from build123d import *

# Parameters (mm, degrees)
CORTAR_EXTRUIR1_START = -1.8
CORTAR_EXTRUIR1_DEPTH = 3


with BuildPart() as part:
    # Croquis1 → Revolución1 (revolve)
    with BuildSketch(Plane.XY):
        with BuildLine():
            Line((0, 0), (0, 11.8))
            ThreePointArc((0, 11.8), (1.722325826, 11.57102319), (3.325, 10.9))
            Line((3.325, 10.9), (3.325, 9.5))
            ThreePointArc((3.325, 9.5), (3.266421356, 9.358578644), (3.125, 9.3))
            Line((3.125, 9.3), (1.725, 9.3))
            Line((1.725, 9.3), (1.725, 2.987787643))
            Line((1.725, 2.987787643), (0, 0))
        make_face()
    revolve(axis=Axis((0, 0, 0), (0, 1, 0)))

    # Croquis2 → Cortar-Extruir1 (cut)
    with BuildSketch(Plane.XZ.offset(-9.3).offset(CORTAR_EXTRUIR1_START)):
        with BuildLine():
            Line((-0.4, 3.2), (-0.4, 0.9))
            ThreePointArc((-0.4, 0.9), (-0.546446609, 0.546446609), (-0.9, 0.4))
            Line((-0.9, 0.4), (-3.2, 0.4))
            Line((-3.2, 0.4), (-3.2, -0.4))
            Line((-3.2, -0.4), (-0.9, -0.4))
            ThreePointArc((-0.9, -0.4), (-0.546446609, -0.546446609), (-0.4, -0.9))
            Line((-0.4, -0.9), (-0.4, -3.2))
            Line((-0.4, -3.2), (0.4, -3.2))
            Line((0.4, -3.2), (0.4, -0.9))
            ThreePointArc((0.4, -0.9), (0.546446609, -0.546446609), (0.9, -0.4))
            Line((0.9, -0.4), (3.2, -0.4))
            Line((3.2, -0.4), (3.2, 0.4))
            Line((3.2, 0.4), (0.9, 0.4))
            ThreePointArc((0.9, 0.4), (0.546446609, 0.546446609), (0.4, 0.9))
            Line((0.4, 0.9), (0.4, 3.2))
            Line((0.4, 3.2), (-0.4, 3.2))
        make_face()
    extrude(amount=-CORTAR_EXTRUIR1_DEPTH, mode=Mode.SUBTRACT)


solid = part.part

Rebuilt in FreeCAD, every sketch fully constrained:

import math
import FreeCAD as App
import Part
import Sketcher
Q = App.Units.Quantity

doc = App.newDocument("Part")
body = doc.addObject("PartDesign::Body", "Body")

sketch1 = body.newObject("Sketcher::SketchObject", "Sketch")
sketch1.AttachmentSupport = (doc.getObject("XY_Plane"), [""])
sketch1.MapMode = "FlatFace"
sketch1.addGeometry([
    Part.LineSegment(App.Vector(0, 11.8, 0), App.Vector(0, 0, 0)),
    Part.LineSegment(App.Vector(0, 0, 0), App.Vector(1.725, 2.987788, 0)),
    Part.LineSegment(App.Vector(1.725, 2.987788, 0), App.Vector(1.725, 9.3, 0)),
    Part.LineSegment(App.Vector(1.725, 9.3, 0), App.Vector(3.125, 9.3, 0)),
    Part.ArcOfCircle(Part.Circle(App.Vector(3.125, 9.5, 0), App.Vector(0, 0, 1), 0.2), math.radians(-90), math.radians(0)),
    Part.LineSegment(App.Vector(3.325, 9.5, 0), App.Vector(3.325, 10.9, 0)),
    Part.ArcOfCircle(Part.Circle(App.Vector(0, 5.207986, 0), App.Vector(0, 0, 1), 6.592014), math.radians(59.708588), math.radians(90)),
], False)
sketch1.addConstraint([
    Sketcher.Constraint("Coincident", 0, 2, 1, 1),
    Sketcher.Constraint("Coincident", 1, 2, 2, 1),
    Sketcher.Constraint("Coincident", 2, 2, 3, 1),
    Sketcher.Constraint("Tangent", 3, 2, 4, 1),
    Sketcher.Constraint("Tangent", 4, 2, 5, 1),
    Sketcher.Constraint("Coincident", 5, 2, 6, 1),
    Sketcher.Constraint("Coincident", 6, 2, 0, 1),
    Sketcher.Constraint("Vertical", 0),
    Sketcher.Constraint("Vertical", 2),
    Sketcher.Constraint("Horizontal", 3),
    Sketcher.Constraint("Vertical", 5),
    Sketcher.Constraint("Coincident", 0, 2, -1, 1),
    Sketcher.Constraint("PointOnObject", 6, 3, -2),
    Sketcher.Constraint("Equal", 3, 5),
    Sketcher.Constraint("Radius", 4, 0.2),
    Sketcher.Constraint("Angle", 1, Q("60 deg")),
    Sketcher.Constraint("DistanceX", 3, 1, 3, 2, 1.4),
    Sketcher.Constraint("DistanceY", 0, 2, 0, 1, 11.8),
    Sketcher.Constraint("DistanceY", -1, 1, 4, 3, 9.5),
    Sketcher.Constraint("Distance", 1, 3.45),
])
revolution = body.newObject("PartDesign::Revolution", "Revolution")
revolution.Profile = sketch1
revolution.ReferenceAxis = (sketch1, ["V_Axis"])
revolution.Angle = 360

sketch2 = body.newObject("Sketcher::SketchObject", "Sketch001")
sketch2.AttachmentSupport = (doc.getObject("XZ_Plane"), [""])
sketch2.MapMode = "FlatFace"
sketch2.AttachmentOffset = App.Placement(App.Vector(0, 0, -11.1), App.Rotation())
sketch2.addGeometry([
    Part.LineSegment(App.Vector(-0.4, 3.2, 0), App.Vector(-0.4, 0.9, 0)),
    Part.ArcOfCircle(Part.Circle(App.Vector(-0.9, 0.9, 0), App.Vector(0, 0, 1), 0.5), math.radians(-90), math.radians(0)),
    Part.LineSegment(App.Vector(-0.9, 0.4, 0), App.Vector(-3.2, 0.4, 0)),
    Part.LineSegment(App.Vector(-3.2, 0.4, 0), App.Vector(-3.2, -0.4, 0)),
    Part.LineSegment(App.Vector(-3.2, -0.4, 0), App.Vector(-0.9, -0.4, 0)),
    Part.ArcOfCircle(Part.Circle(App.Vector(-0.9, -0.9, 0), App.Vector(0, 0, 1), 0.5), math.radians(0), math.radians(90)),
    Part.LineSegment(App.Vector(-0.4, -0.9, 0), App.Vector(-0.4, -3.2, 0)),
    Part.LineSegment(App.Vector(-0.4, -3.2, 0), App.Vector(0.4, -3.2, 0)),
    Part.LineSegment(App.Vector(0.4, -3.2, 0), App.Vector(0.4, -0.9, 0)),
    Part.ArcOfCircle(Part.Circle(App.Vector(0.9, -0.9, 0), App.Vector(0, 0, 1), 0.5), math.radians(90), math.radians(180)),
    Part.LineSegment(App.Vector(0.9, -0.4, 0), App.Vector(3.2, -0.4, 0)),
    Part.LineSegment(App.Vector(3.2, -0.4, 0), App.Vector(3.2, 0.4, 0)),
    Part.LineSegment(App.Vector(3.2, 0.4, 0), App.Vector(0.9, 0.4, 0)),
    Part.ArcOfCircle(Part.Circle(App.Vector(0.9, 0.9, 0), App.Vector(0, 0, 1), 0.5), math.radians(180), math.radians(270)),
    Part.LineSegment(App.Vector(0.4, 0.9, 0), App.Vector(0.4, 3.2, 0)),
    Part.LineSegment(App.Vector(0.4, 3.2, 0), App.Vector(-0.4, 3.2, 0)),
], False)
sketch2.addConstraint([
    Sketcher.Constraint("Tangent", 0, 2, 1, 2),
    Sketcher.Constraint("Tangent", 1, 1, 2, 1),
    Sketcher.Constraint("Coincident", 2, 2, 3, 1),
    Sketcher.Constraint("Coincident", 3, 2, 4, 1),
    Sketcher.Constraint("Tangent", 4, 2, 5, 2),
    Sketcher.Constraint("Tangent", 5, 1, 6, 1),
    Sketcher.Constraint("Coincident", 6, 2, 7, 1),
    Sketcher.Constraint("Coincident", 7, 2, 8, 1),
    Sketcher.Constraint("Tangent", 8, 2, 9, 2),
    Sketcher.Constraint("Tangent", 9, 1, 10, 1),
    Sketcher.Constraint("Coincident", 10, 2, 11, 1),
    Sketcher.Constraint("Coincident", 11, 2, 12, 1),
    Sketcher.Constraint("Tangent", 12, 2, 13, 2),
    Sketcher.Constraint("Tangent", 13, 1, 14, 1),
    Sketcher.Constraint("Coincident", 14, 2, 15, 1),
    Sketcher.Constraint("Coincident", 15, 2, 0, 1),
    Sketcher.Constraint("Vertical", 0),
    Sketcher.Constraint("Horizontal", 2),
    Sketcher.Constraint("Vertical", 3),
    Sketcher.Constraint("Horizontal", 4),
    Sketcher.Constraint("Vertical", 6),
    Sketcher.Constraint("Horizontal", 7),
    Sketcher.Constraint("Vertical", 8),
    Sketcher.Constraint("Horizontal", 10),
    Sketcher.Constraint("Vertical", 11),
    Sketcher.Constraint("Horizontal", 12),
    Sketcher.Constraint("Vertical", 14),
    Sketcher.Constraint("Horizontal", 15),
    Sketcher.Constraint("Equal", 1, 5),
    Sketcher.Constraint("Equal", 5, 9),
    Sketcher.Constraint("Equal", 9, 13),
    Sketcher.Constraint("Symmetric", 1, 3, 9, 3, -1, 1),
    Sketcher.Constraint("Symmetric", 5, 3, 13, 3, -1, 1),
    Sketcher.Constraint("Symmetric", 5, 3, 9, 3, -2),
    Sketcher.Constraint("Equal", 4, 10),
    Sketcher.Constraint("Equal", 12, 0),
    Sketcher.Constraint("Equal", 15, 3),
    Sketcher.Constraint("Equal", 0, 6),
    Sketcher.Constraint("Radius", 1, 0.5),
    Sketcher.Constraint("DistanceX", 2, 2, 2, 1, 2.3),
    Sketcher.Constraint("DistanceX", 7, 1, 7, 2, 0.8),
])
pocket1 = body.newObject("PartDesign::Pocket", "Pocket")
pocket1.Profile = sketch2
pocket1.Length = 3

doc.recompute()
